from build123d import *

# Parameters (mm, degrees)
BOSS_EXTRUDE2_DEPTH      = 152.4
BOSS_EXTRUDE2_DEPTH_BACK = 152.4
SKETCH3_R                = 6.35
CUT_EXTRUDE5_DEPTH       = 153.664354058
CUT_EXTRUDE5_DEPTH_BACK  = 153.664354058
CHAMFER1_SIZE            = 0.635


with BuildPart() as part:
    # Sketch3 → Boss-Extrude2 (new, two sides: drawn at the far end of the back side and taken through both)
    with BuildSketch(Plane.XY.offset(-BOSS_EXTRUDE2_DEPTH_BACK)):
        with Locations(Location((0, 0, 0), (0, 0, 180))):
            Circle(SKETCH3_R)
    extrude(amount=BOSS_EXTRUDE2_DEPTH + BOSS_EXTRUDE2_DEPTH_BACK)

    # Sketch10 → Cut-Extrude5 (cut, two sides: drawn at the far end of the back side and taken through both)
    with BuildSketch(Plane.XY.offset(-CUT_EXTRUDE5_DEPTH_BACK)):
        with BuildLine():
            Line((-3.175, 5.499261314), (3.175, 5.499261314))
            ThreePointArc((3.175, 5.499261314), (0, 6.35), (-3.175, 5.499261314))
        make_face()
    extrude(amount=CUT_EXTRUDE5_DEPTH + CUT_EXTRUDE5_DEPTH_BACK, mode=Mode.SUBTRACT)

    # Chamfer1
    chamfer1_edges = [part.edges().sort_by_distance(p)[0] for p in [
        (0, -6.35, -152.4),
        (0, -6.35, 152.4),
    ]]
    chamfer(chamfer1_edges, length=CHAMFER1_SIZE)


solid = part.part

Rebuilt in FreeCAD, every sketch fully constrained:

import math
import FreeCAD as App
import Part
import Sketcher
Q = App.Units.Quantity


def edges_at(feature, points):
    """Names of the edges that pass closest to the given points."""
    edges = feature.Shape.Edges
    near = lambda p: min(range(len(edges)), key=lambda i: edges[i].distToShape(Part.Vertex(*p))[0])
    return sorted({f"Edge{near(p) + 1}" for p in points})

doc = App.newDocument("Part")
body = doc.addObject("PartDesign::Body", "Body")

# Sketch on XY plane
sketch1 = body.newObject("Sketcher::SketchObject", "Sketch")
sketch1.AttachmentSupport = (doc.getObject("XY_Plane"), [""])
sketch1.MapMode = "FlatFace"
sketch1.addGeometry(Part.Circle(App.Vector(0, 0, 0), App.Vector(0, 0, 1), 6), False)
sketch1.addConstraint([
    Sketcher.Constraint("Coincident", 0, 3, -1, 1),
    Sketcher.Constraint("Diameter", 0, Q("0.5 in")),
])
pad1 = body.newObject("PartDesign::Pad", "Pad")
pad1.Profile = sketch1
pad1.Type = "TwoLengths"
pad1.Length = Q("6 in")
pad1.Length2 = Q("6 in")

# Sketch on XY plane
sketch2 = body.newObject("Sketcher::SketchObject", "Sketch001")
sketch2.AttachmentSupport = (doc.getObject("XY_Plane"), [""])
sketch2.MapMode = "FlatFace"
sketch2.addGeometry([
    Part.LineSegment(App.Vector(-3, 5, 0), App.Vector(3, 5, 0)),
    Part.ArcOfCircle(Part.Circle(App.Vector(0, 0, 0), App.Vector(0, 0, 1), 6), math.radians(60), math.radians(120)),
], False)
sketch2.addConstraint([
    Sketcher.Constraint("Coincident", 0, 1, 1, 2),
    Sketcher.Constraint("Coincident", 1, 1, 0, 2),
    Sketcher.Constraint("Horizontal", 0),
    Sketcher.Constraint("Coincident", 1, 3, -1, 1),
    Sketcher.Constraint("Radius", 1, Q("0.25 in")),
    Sketcher.Constraint("DistanceX", 0, 1, 0, 2, Q("0.25 in")),
])
pocket1 = body.newObject("PartDesign::Pocket", "Pocket")
pocket1.Profile = sketch2
pocket1.Type = "ThroughAll"
pocket1.Midplane = True
doc.recompute()

chamfer = body.newObject("PartDesign::Chamfer", "Chamfer")
chamfer.Base = (pocket1, edges_at(pocket1, [(0, -6.35, -152.4), (0, -6.35, 152.4)]))
chamfer.Size = Q("0.025 in")

doc.recompute()
